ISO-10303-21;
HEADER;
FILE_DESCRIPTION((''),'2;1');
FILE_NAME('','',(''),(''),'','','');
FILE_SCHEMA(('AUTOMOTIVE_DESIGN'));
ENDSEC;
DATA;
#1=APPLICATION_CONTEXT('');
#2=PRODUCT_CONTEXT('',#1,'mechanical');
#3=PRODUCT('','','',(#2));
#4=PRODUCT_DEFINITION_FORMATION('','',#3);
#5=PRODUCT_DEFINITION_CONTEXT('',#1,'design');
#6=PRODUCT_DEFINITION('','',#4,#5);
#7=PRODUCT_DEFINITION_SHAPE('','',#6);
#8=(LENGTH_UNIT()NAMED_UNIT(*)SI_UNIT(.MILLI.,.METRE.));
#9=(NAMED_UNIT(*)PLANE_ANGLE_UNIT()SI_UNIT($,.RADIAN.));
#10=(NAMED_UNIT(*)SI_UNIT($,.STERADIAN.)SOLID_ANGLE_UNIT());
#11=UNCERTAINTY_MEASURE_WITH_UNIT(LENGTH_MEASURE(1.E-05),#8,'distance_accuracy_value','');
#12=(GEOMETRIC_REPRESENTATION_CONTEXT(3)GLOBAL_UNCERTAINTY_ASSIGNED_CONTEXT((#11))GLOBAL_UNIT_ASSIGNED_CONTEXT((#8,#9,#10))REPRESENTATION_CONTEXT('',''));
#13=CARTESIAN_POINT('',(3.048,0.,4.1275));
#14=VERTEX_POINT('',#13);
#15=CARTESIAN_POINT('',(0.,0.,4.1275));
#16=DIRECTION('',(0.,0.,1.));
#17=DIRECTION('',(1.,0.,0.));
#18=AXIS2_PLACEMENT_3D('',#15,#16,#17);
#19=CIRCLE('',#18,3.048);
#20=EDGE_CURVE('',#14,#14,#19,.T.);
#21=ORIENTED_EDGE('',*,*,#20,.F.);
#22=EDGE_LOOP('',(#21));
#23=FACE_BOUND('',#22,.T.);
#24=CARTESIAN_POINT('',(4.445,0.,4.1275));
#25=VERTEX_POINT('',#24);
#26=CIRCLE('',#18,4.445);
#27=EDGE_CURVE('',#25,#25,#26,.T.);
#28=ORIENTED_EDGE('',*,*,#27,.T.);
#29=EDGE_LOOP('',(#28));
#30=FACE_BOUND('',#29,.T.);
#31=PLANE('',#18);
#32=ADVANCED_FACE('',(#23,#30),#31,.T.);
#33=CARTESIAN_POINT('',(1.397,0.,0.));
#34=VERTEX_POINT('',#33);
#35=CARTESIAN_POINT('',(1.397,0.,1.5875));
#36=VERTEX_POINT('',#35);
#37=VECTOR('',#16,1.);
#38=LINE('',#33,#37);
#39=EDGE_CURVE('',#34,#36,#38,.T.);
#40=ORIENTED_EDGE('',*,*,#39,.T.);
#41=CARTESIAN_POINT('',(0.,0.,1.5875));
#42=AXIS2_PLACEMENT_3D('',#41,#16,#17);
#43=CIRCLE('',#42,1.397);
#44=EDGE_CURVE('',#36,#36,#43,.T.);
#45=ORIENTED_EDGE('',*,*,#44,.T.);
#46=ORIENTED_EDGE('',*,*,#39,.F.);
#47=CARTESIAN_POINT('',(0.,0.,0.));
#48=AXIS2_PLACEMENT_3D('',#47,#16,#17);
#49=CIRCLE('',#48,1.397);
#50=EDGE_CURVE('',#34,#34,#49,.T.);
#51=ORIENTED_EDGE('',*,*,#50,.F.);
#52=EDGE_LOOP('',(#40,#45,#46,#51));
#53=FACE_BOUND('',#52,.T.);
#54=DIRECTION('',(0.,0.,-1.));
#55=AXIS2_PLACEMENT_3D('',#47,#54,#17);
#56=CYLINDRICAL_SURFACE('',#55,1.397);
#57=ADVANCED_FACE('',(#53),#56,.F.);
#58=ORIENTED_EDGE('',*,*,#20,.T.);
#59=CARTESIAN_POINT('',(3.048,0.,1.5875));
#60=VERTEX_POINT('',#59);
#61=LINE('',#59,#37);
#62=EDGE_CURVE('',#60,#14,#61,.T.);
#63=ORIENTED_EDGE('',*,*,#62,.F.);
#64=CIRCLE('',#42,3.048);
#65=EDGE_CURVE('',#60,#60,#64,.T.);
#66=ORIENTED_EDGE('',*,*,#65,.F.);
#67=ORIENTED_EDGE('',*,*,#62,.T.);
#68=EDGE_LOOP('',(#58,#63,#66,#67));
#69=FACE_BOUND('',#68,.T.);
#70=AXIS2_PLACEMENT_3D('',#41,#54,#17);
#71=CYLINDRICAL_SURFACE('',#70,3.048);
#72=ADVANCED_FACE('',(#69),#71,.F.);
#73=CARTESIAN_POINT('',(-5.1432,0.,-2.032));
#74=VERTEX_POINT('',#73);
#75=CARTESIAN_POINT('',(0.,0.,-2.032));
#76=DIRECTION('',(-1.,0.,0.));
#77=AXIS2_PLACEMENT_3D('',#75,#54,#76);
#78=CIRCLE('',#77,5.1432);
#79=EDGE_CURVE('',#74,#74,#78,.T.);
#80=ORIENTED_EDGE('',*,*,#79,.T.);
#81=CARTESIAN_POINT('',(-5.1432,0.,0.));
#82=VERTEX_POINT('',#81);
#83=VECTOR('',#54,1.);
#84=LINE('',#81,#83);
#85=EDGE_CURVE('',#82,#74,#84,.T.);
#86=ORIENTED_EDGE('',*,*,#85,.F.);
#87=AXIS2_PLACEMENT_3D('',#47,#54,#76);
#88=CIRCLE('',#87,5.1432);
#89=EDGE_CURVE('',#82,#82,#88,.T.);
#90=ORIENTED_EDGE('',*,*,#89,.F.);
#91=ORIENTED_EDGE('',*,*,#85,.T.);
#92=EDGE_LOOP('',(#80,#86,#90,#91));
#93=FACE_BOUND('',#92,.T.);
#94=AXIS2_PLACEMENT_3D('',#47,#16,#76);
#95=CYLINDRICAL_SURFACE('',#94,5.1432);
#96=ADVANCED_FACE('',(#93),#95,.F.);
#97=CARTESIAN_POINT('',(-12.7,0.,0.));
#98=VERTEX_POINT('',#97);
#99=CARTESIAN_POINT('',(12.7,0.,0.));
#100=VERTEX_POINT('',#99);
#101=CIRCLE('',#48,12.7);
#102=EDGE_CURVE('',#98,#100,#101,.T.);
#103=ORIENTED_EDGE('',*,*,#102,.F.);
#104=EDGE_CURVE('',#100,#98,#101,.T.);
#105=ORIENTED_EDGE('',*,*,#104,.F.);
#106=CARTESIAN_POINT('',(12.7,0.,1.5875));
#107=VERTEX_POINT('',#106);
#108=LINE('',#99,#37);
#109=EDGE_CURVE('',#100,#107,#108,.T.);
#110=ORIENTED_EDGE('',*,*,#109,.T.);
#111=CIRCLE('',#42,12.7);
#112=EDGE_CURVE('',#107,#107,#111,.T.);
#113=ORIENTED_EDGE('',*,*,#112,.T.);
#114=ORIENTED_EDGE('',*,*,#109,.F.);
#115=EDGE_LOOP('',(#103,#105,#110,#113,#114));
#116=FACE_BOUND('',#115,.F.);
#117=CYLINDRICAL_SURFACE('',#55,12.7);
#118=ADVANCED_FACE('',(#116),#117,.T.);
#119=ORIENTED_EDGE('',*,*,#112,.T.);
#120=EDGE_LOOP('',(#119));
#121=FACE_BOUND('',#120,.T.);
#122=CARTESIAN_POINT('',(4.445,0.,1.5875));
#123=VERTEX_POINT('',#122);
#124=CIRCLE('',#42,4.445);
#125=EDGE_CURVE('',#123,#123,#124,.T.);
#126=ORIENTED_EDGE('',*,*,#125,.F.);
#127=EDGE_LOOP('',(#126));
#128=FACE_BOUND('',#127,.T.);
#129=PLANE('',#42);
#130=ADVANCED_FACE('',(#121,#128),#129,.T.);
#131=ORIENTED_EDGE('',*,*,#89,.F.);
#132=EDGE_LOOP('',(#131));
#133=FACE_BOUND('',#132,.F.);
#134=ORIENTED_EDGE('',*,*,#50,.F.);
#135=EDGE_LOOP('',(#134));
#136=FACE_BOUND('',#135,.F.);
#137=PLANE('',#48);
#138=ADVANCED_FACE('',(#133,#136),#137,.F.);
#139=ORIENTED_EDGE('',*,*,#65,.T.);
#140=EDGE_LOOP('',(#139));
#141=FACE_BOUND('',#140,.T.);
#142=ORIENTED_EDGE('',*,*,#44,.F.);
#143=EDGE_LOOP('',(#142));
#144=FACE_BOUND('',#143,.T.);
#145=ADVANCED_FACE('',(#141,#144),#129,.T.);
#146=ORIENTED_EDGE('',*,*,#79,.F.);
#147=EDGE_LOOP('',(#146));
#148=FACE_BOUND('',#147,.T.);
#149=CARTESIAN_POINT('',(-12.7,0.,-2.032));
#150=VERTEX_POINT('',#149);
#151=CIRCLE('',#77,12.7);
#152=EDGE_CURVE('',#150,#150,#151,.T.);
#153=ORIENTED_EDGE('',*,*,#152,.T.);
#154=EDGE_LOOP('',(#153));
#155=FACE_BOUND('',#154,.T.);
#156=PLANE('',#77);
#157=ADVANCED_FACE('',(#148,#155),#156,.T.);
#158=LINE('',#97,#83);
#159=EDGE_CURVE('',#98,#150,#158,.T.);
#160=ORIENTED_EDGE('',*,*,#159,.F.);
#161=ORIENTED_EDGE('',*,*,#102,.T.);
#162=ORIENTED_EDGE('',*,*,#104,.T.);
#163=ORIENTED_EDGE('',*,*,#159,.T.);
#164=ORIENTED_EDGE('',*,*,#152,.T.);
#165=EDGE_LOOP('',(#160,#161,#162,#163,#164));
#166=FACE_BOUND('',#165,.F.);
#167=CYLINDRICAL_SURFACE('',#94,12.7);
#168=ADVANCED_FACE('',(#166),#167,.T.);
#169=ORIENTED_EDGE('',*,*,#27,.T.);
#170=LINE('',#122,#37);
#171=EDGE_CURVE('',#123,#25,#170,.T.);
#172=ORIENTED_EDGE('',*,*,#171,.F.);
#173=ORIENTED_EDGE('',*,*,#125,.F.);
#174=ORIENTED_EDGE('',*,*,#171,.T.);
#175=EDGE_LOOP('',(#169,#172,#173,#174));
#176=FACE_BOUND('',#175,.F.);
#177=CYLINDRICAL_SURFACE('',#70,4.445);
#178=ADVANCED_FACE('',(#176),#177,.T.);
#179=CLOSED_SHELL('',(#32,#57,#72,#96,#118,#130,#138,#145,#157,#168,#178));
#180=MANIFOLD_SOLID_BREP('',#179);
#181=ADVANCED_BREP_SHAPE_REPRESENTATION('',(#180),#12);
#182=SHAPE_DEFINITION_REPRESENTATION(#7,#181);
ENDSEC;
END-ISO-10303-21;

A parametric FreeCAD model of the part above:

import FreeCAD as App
import Part
import Sketcher
Q = App.Units.Quantity

doc = App.newDocument("Part")
params = doc.addObject("Spreadsheet::Sheet", "Params")
for row, (alias, value) in enumerate([
    ("sketch1_diameter", "1 in"),
    ("sketch1_diameter2", "0.11 in"),
    ("pad1_length", "0.0625 in"),
    ("sketch2_diameter", "0.35 in"),
    ("sketch2_diameter2", "0.24 in"),
    ("pad2_length", "0.1 in"),
    ("sketch3_diameter", "1 in"),
    ("pad3_length", "0.08 in"),
], start=1):
    params.set(f"A{row}", alias)
    params.set(f"B{row}", "=" + value)
    params.setAlias(f"B{row}", alias)

body = doc.addObject("PartDesign::Body", "Body")

sketch1 = body.newObject("Sketcher::SketchObject", "Sketch")
sketch1.AttachmentSupport = (doc.getObject("XY_Plane"), [""])
sketch1.MapMode = "FlatFace"
sketch1.addGeometry([
    Part.Circle(App.Vector(0, 0, 0), App.Vector(0, 0, 1), 12.7),
    Part.Circle(App.Vector(0, 0, 0), App.Vector(0, 0, 1), 1.4),
], False)
sketch1.addConstraint([
    Sketcher.Constraint("Coincident", 0, 3, -1, 1),
    Sketcher.Constraint("Coincident", 1, 3, -1, 1),
    Sketcher.Constraint("Diameter", 0, Q("1 in")),
    Sketcher.Constraint("Diameter", 1, Q("0.11 in")),
])
sketch1.setExpression("Constraints[2]", "Params.sketch1_diameter")
sketch1.setExpression("Constraints[3]", "Params.sketch1_diameter2")
pad1 = body.newObject("PartDesign::Pad", "Pad")
pad1.Profile = sketch1
pad1.setExpression("Length", "Params.pad1_length")

sketch2 = body.newObject("Sketcher::SketchObject", "Sketch001")
sketch2.AttachmentSupport = (doc.getObject("XY_Plane"), [""])
sketch2.MapMode = "FlatFace"
sketch2.AttachmentOffset = App.Placement(App.Vector(0, 0, 0.0625 * 25.4), App.Rotation())
sketch2.addGeometry([
    Part.Circle(App.Vector(0, 0, 0), App.Vector(0, 0, 1), 4.4),
    Part.Circle(App.Vector(0, 0, 0), App.Vector(0, 0, 1), 3),
], False)
sketch2.addConstraint([
    Sketcher.Constraint("Coincident", 0, 3, -1, 1),
    Sketcher.Constraint("Coincident", 1, 3, -1, 1),
    Sketcher.Constraint("Diameter", 0, Q("0.35 in")),
    Sketcher.Constraint("Diameter", 1, Q("0.24 in")),
])
sketch2.setExpression("Constraints[2]", "Params.sketch2_diameter")
sketch2.setExpression("Constraints[3]", "Params.sketch2_diameter2")
pad2 = body.newObject("PartDesign::Pad", "Pad001")
pad2.Profile = sketch2
pad2.setExpression("Length", "Params.pad2_length")

sketch3 = body.newObject("Sketcher::SketchObject", "Sketch002")
sketch3.AttachmentSupport = (doc.getObject("XY_Plane"), [""])
sketch3.MapMode = "FlatFace"
sketch3.addGeometry([
    Part.Circle(App.Vector(0, 0, 0), App.Vector(0, 0, 1), 13),
    Part.Circle(App.Vector(0, 0, 0), App.Vector(0, 0, 1), 5),
], False)
sketch3.addConstraint([
    Sketcher.Constraint("Coincident", 0, 3, -1, 1),
    Sketcher.Constraint("Coincident", 1, 3, -1, 1),
    Sketcher.Constraint("Diameter", 0, Q("1 in")),
    Sketcher.Constraint("Diameter", 1, 10.2864),
])
sketch3.setExpression("Constraints[2]", "Params.sketch3_diameter")
pad3 = body.newObject("PartDesign::Pad", "Pad002")
pad3.Profile = sketch3
pad3.setExpression("Length", "Params.pad3_length")
pad3.Reversed = True

doc.recompute()
